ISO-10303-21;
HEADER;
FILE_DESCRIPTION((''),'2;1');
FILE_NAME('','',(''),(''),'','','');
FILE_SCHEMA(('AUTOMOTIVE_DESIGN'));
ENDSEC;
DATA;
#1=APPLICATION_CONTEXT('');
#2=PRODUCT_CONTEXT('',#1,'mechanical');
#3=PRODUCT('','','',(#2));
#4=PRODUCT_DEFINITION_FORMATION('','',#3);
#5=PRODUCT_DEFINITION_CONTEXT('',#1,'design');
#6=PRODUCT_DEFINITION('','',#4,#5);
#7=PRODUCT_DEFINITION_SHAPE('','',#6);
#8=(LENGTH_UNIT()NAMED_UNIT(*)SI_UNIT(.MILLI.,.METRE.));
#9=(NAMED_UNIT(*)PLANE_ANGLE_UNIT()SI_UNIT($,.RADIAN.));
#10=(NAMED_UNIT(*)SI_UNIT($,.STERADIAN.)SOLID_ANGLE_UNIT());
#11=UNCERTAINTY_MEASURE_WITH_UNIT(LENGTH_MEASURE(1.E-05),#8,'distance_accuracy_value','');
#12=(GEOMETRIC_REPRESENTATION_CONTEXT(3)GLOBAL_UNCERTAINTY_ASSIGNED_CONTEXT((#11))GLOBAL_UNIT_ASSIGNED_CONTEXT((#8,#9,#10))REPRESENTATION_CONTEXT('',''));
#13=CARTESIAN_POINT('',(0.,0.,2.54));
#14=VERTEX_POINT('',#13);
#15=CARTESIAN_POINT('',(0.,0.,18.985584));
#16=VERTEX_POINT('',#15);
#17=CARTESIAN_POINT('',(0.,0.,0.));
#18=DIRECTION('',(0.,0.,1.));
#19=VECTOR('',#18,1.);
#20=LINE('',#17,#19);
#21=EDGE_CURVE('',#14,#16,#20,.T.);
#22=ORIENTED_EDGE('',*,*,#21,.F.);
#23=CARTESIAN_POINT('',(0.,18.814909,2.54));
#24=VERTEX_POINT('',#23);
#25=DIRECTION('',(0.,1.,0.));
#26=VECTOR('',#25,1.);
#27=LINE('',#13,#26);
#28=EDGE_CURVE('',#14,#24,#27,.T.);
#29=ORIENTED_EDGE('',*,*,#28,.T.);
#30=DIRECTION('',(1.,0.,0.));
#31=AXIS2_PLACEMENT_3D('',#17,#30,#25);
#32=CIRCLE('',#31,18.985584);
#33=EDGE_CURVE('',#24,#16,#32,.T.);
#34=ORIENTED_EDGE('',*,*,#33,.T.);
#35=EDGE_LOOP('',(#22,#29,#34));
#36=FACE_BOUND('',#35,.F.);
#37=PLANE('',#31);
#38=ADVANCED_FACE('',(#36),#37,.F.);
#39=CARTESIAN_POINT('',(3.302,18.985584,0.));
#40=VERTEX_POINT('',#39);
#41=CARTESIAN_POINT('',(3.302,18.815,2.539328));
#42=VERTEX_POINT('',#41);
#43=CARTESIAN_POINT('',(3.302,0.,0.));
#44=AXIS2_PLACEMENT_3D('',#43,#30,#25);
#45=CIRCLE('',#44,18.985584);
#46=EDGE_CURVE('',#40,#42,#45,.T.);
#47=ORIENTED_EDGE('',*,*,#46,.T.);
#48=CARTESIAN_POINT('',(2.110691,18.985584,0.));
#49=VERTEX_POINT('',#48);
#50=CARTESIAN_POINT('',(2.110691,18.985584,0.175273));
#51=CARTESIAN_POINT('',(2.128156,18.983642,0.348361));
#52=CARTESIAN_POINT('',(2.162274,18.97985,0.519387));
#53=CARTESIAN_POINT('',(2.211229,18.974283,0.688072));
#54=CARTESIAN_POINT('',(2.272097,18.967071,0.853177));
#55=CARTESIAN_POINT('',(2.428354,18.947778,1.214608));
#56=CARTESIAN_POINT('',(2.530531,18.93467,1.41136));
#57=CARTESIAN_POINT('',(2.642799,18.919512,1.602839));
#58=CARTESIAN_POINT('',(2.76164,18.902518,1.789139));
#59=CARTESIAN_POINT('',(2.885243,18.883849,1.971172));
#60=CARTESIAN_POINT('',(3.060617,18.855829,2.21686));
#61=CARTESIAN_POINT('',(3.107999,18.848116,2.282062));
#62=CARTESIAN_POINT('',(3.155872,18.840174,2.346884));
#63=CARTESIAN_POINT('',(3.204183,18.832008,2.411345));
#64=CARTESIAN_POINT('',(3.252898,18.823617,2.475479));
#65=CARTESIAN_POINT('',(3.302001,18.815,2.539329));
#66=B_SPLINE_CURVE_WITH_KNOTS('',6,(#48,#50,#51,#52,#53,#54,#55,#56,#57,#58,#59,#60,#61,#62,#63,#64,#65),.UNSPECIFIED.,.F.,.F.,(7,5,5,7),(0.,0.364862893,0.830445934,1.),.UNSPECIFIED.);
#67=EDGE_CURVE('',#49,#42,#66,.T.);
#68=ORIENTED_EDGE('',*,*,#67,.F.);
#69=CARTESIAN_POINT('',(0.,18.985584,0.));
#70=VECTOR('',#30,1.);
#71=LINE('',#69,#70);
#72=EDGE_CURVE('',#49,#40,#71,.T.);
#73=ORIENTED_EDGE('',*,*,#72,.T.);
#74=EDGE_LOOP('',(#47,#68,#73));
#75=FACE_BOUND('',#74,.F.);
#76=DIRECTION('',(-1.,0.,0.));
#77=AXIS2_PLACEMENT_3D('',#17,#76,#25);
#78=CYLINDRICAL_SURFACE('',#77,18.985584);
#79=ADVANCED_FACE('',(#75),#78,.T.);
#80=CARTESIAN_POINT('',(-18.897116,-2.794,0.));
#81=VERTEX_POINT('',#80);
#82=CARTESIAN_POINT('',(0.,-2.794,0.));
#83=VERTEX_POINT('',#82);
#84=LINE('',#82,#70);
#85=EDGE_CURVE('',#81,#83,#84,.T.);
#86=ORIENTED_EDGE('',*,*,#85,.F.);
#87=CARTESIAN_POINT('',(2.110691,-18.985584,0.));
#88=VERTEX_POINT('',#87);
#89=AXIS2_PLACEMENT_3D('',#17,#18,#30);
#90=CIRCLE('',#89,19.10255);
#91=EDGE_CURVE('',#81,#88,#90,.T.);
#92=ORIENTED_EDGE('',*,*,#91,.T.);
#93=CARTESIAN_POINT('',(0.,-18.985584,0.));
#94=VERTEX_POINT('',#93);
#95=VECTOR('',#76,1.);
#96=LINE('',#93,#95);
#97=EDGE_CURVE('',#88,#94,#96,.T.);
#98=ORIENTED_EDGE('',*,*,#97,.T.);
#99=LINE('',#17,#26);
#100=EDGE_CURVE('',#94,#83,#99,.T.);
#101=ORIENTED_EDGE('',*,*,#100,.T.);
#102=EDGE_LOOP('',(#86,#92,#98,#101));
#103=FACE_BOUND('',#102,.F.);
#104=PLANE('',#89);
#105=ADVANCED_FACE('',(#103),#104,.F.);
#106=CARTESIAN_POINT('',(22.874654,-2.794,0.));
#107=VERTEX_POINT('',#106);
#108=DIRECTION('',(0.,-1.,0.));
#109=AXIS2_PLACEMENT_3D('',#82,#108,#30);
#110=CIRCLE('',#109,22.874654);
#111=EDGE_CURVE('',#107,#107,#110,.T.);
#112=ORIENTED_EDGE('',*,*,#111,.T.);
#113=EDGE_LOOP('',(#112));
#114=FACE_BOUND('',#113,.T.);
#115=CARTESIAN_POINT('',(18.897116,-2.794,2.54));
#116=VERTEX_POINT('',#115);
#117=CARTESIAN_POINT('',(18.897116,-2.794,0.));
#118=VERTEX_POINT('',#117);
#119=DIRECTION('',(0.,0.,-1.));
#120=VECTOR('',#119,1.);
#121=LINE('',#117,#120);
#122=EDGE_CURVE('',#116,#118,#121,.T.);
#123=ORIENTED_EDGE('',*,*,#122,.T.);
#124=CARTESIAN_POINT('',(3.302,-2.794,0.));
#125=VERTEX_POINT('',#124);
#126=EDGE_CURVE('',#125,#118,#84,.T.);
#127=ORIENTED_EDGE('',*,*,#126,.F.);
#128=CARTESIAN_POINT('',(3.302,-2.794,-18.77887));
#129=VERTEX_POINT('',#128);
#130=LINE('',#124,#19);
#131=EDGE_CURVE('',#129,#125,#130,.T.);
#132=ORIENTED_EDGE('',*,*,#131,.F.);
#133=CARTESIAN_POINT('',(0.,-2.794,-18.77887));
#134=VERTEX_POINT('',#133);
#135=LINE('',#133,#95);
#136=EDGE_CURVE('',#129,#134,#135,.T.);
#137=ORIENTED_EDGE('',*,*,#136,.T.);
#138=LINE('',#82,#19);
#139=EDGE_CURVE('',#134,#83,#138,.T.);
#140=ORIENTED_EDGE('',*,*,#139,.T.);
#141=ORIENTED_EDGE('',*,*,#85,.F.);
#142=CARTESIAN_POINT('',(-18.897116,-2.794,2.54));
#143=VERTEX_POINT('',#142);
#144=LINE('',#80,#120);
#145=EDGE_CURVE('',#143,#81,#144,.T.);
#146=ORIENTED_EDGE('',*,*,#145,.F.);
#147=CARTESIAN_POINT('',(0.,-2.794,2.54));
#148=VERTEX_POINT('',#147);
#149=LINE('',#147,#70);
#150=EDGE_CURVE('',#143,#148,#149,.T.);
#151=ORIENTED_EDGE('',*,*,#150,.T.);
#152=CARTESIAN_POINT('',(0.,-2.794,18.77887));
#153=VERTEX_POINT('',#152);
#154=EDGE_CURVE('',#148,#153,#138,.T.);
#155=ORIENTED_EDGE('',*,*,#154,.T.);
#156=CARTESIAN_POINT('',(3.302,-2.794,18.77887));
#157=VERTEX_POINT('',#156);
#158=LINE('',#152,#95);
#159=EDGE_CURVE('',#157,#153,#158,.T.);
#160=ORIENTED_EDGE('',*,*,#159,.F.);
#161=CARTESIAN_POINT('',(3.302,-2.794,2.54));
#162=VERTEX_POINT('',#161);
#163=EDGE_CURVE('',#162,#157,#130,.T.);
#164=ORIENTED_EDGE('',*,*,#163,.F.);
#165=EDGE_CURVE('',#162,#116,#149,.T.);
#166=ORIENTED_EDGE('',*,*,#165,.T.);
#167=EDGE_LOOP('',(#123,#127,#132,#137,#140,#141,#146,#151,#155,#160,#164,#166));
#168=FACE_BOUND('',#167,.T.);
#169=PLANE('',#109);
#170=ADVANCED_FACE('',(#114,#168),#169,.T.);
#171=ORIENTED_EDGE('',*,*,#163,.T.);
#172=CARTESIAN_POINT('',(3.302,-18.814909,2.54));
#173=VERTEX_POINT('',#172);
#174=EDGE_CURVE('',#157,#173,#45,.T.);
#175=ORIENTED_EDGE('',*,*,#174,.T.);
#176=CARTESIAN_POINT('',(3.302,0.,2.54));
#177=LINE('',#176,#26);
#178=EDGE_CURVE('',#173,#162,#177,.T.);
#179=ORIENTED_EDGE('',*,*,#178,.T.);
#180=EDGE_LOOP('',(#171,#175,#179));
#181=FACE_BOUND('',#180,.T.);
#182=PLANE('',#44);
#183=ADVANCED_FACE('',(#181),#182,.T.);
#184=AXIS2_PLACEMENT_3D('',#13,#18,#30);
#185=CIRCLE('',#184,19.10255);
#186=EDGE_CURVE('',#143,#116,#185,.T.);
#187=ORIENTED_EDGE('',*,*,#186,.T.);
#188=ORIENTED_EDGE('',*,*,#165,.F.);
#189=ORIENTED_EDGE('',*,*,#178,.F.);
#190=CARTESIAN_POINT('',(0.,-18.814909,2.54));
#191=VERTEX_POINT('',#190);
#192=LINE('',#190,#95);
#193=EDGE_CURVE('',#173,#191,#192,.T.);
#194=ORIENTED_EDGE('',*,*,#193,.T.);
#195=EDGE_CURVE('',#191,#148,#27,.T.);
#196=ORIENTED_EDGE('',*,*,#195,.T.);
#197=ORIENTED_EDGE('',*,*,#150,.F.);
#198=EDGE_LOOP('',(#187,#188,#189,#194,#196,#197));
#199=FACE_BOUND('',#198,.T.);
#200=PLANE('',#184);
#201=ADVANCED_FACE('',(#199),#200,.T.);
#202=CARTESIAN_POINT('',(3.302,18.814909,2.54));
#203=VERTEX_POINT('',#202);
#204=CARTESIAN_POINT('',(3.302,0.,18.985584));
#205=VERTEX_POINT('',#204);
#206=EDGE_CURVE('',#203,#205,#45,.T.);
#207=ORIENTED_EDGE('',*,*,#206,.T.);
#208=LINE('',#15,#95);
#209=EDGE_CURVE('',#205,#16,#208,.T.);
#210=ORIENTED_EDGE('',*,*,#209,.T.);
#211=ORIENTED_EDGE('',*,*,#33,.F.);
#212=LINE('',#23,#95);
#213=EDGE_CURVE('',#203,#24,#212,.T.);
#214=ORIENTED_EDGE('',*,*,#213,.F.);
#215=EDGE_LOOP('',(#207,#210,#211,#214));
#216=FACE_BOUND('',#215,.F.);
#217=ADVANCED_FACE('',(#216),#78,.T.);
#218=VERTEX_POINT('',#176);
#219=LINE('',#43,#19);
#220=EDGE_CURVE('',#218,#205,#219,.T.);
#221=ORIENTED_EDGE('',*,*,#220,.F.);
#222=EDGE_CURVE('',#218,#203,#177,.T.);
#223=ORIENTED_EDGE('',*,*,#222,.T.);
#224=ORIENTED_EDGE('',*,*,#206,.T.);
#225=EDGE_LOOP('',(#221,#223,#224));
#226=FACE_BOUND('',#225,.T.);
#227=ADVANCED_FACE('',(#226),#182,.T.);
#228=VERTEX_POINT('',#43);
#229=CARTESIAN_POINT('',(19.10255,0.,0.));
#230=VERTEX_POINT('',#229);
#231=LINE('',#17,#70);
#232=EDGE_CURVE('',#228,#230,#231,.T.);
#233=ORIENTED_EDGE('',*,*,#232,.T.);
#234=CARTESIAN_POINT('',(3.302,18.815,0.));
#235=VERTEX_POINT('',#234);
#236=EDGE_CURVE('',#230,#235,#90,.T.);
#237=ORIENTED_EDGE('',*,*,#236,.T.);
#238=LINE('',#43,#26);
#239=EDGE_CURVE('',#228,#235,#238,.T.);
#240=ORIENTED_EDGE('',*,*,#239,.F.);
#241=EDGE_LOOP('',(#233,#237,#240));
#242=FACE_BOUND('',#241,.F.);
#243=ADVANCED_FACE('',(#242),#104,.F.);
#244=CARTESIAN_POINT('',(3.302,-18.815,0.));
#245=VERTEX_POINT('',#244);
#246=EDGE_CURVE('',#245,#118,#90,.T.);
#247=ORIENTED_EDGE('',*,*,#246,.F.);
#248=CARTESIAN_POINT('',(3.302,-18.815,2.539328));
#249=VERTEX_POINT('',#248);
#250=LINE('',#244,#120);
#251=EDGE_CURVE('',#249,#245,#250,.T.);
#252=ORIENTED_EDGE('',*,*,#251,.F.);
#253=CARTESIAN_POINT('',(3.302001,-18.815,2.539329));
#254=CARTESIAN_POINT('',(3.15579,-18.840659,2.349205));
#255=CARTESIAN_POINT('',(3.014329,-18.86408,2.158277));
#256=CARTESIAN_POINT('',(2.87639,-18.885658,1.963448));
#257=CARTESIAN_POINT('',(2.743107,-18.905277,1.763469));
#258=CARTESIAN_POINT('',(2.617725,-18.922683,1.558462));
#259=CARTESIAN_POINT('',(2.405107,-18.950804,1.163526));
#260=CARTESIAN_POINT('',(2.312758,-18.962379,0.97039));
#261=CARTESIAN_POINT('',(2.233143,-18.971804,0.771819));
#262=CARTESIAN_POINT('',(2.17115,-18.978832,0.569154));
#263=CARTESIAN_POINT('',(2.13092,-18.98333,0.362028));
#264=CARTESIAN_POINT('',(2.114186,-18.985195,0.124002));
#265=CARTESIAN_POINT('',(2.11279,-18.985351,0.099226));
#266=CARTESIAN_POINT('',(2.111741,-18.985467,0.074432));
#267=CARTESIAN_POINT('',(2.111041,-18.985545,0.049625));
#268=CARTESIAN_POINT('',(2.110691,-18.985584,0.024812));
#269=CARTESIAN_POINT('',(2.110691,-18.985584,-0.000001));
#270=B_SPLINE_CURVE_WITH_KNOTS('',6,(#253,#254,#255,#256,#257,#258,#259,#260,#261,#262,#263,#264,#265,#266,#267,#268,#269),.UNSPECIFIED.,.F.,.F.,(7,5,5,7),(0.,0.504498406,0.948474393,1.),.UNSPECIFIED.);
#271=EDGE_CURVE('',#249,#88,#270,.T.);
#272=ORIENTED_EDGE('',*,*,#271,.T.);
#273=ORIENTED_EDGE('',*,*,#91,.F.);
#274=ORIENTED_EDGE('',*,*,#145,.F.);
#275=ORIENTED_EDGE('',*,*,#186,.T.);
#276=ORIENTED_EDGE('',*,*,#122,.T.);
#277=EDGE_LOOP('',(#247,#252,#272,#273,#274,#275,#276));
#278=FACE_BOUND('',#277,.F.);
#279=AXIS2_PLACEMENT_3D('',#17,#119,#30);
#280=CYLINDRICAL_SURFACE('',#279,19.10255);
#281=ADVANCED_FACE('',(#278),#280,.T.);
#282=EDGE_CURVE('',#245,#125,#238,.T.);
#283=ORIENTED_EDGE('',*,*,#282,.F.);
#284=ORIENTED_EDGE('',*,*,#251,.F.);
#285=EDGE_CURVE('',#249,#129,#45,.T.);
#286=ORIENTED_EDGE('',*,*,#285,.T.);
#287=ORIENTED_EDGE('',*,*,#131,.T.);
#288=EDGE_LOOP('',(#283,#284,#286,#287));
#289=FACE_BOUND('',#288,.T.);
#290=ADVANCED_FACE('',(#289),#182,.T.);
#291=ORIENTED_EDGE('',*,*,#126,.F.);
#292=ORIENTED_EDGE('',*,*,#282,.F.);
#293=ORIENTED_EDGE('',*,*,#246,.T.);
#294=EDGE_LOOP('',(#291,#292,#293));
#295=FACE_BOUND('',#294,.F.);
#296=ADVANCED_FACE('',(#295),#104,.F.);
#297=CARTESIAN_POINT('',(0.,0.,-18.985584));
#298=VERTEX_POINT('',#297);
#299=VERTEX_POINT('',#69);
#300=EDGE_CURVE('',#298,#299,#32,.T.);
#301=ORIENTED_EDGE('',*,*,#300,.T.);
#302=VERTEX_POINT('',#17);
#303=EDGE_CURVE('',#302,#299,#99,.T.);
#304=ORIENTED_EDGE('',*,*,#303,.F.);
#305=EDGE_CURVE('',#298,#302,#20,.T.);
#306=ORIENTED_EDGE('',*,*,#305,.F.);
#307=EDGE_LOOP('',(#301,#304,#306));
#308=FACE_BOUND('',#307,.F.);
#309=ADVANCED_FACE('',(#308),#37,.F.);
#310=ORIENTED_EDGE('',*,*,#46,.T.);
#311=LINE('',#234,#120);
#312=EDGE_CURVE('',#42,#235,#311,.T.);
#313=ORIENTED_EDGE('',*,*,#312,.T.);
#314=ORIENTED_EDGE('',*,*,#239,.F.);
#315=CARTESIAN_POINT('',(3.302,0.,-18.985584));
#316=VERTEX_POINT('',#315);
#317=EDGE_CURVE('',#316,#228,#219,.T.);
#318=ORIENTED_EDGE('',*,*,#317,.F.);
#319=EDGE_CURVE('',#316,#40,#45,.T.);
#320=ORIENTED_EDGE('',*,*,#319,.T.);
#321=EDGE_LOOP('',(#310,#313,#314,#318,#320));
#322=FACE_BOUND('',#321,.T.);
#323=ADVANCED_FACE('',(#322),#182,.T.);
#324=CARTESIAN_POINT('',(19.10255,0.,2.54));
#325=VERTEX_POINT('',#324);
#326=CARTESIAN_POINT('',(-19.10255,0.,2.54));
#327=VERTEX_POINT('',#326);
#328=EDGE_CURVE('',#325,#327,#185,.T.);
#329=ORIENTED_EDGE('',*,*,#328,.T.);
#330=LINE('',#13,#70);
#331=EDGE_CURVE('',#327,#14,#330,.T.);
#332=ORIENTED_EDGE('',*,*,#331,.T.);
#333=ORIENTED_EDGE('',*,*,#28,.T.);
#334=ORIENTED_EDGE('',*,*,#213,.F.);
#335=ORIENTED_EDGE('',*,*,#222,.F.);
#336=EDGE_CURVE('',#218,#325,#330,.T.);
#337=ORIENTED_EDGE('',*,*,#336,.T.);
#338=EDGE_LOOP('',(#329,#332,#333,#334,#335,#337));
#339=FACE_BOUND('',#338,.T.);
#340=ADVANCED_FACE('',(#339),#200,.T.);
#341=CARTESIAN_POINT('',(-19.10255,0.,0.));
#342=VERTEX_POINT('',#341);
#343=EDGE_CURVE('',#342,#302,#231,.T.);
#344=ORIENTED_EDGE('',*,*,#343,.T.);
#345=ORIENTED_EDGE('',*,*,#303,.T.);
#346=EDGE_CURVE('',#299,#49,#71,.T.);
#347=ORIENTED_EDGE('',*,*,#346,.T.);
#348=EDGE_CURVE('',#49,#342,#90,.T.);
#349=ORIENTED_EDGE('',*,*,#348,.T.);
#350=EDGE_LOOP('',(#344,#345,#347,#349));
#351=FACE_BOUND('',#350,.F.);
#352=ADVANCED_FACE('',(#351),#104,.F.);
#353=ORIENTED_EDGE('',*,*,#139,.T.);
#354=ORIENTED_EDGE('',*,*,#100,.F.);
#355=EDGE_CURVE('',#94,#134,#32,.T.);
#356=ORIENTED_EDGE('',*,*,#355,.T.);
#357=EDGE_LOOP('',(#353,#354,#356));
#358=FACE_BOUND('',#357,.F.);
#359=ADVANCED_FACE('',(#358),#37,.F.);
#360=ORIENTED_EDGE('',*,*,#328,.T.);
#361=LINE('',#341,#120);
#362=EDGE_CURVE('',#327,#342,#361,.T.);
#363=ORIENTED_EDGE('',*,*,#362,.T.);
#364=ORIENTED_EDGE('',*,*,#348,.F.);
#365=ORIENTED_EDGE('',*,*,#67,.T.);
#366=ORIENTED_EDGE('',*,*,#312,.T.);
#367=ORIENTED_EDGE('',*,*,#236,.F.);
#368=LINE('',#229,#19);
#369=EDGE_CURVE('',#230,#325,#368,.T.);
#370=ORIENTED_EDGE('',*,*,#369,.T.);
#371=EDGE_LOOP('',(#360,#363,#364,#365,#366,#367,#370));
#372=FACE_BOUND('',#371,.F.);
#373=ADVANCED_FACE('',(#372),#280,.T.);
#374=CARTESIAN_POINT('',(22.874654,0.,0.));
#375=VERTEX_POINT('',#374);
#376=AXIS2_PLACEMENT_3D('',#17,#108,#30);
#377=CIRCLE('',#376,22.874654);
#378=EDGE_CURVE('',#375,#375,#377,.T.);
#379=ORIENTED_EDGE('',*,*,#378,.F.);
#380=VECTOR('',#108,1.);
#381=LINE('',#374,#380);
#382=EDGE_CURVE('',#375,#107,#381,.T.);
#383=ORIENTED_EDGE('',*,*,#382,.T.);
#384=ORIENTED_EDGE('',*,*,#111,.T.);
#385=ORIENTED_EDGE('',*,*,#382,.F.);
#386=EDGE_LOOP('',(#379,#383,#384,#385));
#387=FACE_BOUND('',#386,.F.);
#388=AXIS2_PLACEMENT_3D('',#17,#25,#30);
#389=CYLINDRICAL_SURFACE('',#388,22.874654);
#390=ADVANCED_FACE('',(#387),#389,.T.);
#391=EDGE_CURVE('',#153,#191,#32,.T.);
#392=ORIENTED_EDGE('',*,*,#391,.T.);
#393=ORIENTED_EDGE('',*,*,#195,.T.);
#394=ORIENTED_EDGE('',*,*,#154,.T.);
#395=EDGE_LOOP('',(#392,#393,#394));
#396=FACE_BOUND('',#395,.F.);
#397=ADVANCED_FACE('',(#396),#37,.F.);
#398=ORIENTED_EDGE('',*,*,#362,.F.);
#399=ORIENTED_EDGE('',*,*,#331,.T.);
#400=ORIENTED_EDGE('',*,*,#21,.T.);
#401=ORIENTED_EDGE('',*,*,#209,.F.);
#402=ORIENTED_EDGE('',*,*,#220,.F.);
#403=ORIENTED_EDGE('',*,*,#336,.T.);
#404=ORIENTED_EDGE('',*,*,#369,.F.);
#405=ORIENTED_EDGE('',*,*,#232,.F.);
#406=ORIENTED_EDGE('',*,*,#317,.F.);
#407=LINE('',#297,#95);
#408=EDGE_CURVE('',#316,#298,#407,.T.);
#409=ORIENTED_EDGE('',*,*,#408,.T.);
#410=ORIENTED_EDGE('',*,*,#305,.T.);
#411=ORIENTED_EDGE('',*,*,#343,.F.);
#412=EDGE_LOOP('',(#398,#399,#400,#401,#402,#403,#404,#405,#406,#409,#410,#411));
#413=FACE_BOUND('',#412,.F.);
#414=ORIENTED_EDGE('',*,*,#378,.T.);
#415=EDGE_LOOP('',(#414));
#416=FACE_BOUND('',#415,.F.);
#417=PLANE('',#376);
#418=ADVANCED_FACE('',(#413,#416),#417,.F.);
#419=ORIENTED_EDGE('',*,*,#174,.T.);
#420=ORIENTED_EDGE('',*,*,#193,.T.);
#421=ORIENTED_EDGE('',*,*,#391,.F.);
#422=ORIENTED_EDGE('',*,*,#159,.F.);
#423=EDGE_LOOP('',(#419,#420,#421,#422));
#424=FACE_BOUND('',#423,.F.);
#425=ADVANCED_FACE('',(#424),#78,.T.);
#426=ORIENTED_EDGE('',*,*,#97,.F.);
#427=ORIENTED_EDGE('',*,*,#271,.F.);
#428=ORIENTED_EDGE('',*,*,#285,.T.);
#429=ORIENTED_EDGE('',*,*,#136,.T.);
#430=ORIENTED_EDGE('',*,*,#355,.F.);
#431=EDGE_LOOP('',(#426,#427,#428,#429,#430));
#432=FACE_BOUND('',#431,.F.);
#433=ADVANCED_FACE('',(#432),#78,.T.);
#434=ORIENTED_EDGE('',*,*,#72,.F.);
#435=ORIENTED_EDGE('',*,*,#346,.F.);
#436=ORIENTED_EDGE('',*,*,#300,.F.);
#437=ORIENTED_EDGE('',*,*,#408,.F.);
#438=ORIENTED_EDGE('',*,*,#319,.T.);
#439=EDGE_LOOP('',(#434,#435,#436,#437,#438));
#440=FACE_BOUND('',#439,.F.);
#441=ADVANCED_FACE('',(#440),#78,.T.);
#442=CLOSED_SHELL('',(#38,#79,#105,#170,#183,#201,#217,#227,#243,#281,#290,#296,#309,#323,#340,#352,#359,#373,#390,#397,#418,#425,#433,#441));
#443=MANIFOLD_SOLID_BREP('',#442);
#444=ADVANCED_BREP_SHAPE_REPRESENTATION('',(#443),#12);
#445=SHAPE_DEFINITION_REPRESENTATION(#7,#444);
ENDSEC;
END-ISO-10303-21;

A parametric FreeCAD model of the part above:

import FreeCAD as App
import Part
import Sketcher
Q = App.Units.Quantity

doc = App.newDocument("Part")
body = doc.addObject("PartDesign::Body", "Body")

# Sketch on XY plane
sketch1 = body.newObject("Sketcher::SketchObject", "Sketch")
sketch1.AttachmentSupport = (doc.getObject("XY_Plane"), [""])
sketch1.MapMode = "FlatFace"
sketch1.addGeometry(Part.Circle(App.Vector(0, 0, 0), App.Vector(0, 0, 1), 19.10255), False)
sketch1.addConstraint([
    Sketcher.Constraint("Coincident", 0, 3, -1, 1),
    Sketcher.Constraint("Diameter", 0, 38.2051),
])
pad1 = body.newObject("PartDesign::Pad", "Pad")
pad1.Profile = sketch1
pad1.Length = Q("0.1 in")

# Sketch on XZ plane
sketch2 = body.newObject("Sketcher::SketchObject", "Sketch001")
sketch2.AttachmentSupport = (doc.getObject("XZ_Plane"), [""])
sketch2.MapMode = "FlatFace"
sketch2.addGeometry(Part.Circle(App.Vector(0, 0, 0), App.Vector(0, 0, 1), 22.874654), False)
sketch2.addConstraint([
    Sketcher.Constraint("Coincident", 0, 3, -1, 1),
    Sketcher.Constraint("Diameter", 0, 45.749308),
])
pad2 = body.newObject("PartDesign::Pad", "Pad001")
pad2.Profile = sketch2
pad2.Length = Q("0.11 in")

# Sketch on YZ plane
sketch3 = body.newObject("Sketcher::SketchObject", "Sketch002")
sketch3.AttachmentSupport = (doc.getObject("YZ_Plane"), [""])
sketch3.MapMode = "FlatFace"
sketch3.addGeometry(Part.Circle(App.Vector(0, 0, 0), App.Vector(0, 0, 1), 18.985584), False)
sketch3.addConstraint([
    Sketcher.Constraint("Coincident", 0, 3, -1, 1),
    Sketcher.Constraint("Diameter", 0, 37.971168),
])
pad3 = body.newObject("PartDesign::Pad", "Pad002")
pad3.Profile = sketch3
pad3.Length = Q("0.13 in")

doc.recompute()
